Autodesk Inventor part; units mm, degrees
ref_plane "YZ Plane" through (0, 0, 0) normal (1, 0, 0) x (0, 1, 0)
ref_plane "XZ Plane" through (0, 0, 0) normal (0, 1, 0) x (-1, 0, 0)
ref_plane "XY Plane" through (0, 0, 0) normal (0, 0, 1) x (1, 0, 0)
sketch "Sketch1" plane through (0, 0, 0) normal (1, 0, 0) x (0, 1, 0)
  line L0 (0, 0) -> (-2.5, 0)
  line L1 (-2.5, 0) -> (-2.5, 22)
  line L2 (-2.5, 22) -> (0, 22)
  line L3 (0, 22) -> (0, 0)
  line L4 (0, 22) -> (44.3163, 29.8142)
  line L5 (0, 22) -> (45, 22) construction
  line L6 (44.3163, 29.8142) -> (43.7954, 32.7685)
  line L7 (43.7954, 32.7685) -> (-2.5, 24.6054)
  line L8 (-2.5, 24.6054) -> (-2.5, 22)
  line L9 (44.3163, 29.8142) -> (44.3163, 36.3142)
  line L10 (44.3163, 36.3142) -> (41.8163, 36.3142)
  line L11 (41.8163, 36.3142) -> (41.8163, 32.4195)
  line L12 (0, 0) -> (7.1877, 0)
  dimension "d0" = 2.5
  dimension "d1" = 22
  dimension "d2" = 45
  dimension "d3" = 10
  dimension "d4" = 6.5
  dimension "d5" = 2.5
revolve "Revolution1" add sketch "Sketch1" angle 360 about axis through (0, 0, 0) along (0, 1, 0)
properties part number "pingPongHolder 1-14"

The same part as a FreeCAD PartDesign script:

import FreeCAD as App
import Part
import Sketcher
Q = App.Units.Quantity


def add_polygon(sketch, points):
    """Adds a closed chain of lines whose ends are joined by coincident constraints."""
    first, n = sketch.GeometryCount, len(points)
    for a, b in zip(points, points[1:] + points[:1]):
        sketch.addGeometry(Part.LineSegment(App.Vector(*a, 0), App.Vector(*b, 0)), False)
    for i in range(n):
        sketch.addConstraint(Sketcher.Constraint("Coincident", first + i, 2, first + (i + 1) % n, 1))

doc = App.newDocument("Part")
body = doc.addObject("PartDesign::Body", "Body")

# Sketch on YZ plane
sketch1 = body.newObject("Sketcher::SketchObject", "Sketch")
sketch1.AttachmentSupport = (doc.getObject("YZ_Plane"), [""])
sketch1.MapMode = "FlatFace"
add_polygon(sketch1, [(-2.5, 0), (0, 0), (0, 22), (44.3, 29.8), (44.3, 36.3), (41.8, 36.3), (41.8, 32.4), (-2.5, 24.6)])  # lines 0-7
sketch1.addConstraint([
    Sketcher.Constraint("Horizontal", 0),
    Sketcher.Constraint("Vertical", 1),
    Sketcher.Constraint("Vertical", 3),
    Sketcher.Constraint("Horizontal", 4),
    Sketcher.Constraint("Vertical", 5),
    Sketcher.Constraint("Vertical", 7),
    Sketcher.Constraint("Coincident", 0, 2, -1, 1),
    Sketcher.Constraint("Parallel", 2, 6),
    Sketcher.Constraint("Equal", 0, 4),
    Sketcher.Constraint("DistanceY", 1, 1, 1, 2, Q("22 mm")),
    Sketcher.Constraint("Angle", 2, Q("10 deg")),
    Sketcher.Constraint("Distance", 2, Q("45 mm")),
    Sketcher.Constraint("DistanceX", 0, 1, 0, 2, Q("2.5 mm")),
    Sketcher.Constraint("DistanceY", 3, 1, 3, 2, Q("6.5 mm")),
    Sketcher.Constraint("DistanceY", 5, 2, 5, 1, Q("3.8947 mm")),
])
revolution = body.newObject("PartDesign::Revolution", "Revolution")
revolution.Profile = sketch1
revolution.ReferenceAxis = (sketch1, ["H_Axis"])
revolution.Angle = 360

doc.recompute()
